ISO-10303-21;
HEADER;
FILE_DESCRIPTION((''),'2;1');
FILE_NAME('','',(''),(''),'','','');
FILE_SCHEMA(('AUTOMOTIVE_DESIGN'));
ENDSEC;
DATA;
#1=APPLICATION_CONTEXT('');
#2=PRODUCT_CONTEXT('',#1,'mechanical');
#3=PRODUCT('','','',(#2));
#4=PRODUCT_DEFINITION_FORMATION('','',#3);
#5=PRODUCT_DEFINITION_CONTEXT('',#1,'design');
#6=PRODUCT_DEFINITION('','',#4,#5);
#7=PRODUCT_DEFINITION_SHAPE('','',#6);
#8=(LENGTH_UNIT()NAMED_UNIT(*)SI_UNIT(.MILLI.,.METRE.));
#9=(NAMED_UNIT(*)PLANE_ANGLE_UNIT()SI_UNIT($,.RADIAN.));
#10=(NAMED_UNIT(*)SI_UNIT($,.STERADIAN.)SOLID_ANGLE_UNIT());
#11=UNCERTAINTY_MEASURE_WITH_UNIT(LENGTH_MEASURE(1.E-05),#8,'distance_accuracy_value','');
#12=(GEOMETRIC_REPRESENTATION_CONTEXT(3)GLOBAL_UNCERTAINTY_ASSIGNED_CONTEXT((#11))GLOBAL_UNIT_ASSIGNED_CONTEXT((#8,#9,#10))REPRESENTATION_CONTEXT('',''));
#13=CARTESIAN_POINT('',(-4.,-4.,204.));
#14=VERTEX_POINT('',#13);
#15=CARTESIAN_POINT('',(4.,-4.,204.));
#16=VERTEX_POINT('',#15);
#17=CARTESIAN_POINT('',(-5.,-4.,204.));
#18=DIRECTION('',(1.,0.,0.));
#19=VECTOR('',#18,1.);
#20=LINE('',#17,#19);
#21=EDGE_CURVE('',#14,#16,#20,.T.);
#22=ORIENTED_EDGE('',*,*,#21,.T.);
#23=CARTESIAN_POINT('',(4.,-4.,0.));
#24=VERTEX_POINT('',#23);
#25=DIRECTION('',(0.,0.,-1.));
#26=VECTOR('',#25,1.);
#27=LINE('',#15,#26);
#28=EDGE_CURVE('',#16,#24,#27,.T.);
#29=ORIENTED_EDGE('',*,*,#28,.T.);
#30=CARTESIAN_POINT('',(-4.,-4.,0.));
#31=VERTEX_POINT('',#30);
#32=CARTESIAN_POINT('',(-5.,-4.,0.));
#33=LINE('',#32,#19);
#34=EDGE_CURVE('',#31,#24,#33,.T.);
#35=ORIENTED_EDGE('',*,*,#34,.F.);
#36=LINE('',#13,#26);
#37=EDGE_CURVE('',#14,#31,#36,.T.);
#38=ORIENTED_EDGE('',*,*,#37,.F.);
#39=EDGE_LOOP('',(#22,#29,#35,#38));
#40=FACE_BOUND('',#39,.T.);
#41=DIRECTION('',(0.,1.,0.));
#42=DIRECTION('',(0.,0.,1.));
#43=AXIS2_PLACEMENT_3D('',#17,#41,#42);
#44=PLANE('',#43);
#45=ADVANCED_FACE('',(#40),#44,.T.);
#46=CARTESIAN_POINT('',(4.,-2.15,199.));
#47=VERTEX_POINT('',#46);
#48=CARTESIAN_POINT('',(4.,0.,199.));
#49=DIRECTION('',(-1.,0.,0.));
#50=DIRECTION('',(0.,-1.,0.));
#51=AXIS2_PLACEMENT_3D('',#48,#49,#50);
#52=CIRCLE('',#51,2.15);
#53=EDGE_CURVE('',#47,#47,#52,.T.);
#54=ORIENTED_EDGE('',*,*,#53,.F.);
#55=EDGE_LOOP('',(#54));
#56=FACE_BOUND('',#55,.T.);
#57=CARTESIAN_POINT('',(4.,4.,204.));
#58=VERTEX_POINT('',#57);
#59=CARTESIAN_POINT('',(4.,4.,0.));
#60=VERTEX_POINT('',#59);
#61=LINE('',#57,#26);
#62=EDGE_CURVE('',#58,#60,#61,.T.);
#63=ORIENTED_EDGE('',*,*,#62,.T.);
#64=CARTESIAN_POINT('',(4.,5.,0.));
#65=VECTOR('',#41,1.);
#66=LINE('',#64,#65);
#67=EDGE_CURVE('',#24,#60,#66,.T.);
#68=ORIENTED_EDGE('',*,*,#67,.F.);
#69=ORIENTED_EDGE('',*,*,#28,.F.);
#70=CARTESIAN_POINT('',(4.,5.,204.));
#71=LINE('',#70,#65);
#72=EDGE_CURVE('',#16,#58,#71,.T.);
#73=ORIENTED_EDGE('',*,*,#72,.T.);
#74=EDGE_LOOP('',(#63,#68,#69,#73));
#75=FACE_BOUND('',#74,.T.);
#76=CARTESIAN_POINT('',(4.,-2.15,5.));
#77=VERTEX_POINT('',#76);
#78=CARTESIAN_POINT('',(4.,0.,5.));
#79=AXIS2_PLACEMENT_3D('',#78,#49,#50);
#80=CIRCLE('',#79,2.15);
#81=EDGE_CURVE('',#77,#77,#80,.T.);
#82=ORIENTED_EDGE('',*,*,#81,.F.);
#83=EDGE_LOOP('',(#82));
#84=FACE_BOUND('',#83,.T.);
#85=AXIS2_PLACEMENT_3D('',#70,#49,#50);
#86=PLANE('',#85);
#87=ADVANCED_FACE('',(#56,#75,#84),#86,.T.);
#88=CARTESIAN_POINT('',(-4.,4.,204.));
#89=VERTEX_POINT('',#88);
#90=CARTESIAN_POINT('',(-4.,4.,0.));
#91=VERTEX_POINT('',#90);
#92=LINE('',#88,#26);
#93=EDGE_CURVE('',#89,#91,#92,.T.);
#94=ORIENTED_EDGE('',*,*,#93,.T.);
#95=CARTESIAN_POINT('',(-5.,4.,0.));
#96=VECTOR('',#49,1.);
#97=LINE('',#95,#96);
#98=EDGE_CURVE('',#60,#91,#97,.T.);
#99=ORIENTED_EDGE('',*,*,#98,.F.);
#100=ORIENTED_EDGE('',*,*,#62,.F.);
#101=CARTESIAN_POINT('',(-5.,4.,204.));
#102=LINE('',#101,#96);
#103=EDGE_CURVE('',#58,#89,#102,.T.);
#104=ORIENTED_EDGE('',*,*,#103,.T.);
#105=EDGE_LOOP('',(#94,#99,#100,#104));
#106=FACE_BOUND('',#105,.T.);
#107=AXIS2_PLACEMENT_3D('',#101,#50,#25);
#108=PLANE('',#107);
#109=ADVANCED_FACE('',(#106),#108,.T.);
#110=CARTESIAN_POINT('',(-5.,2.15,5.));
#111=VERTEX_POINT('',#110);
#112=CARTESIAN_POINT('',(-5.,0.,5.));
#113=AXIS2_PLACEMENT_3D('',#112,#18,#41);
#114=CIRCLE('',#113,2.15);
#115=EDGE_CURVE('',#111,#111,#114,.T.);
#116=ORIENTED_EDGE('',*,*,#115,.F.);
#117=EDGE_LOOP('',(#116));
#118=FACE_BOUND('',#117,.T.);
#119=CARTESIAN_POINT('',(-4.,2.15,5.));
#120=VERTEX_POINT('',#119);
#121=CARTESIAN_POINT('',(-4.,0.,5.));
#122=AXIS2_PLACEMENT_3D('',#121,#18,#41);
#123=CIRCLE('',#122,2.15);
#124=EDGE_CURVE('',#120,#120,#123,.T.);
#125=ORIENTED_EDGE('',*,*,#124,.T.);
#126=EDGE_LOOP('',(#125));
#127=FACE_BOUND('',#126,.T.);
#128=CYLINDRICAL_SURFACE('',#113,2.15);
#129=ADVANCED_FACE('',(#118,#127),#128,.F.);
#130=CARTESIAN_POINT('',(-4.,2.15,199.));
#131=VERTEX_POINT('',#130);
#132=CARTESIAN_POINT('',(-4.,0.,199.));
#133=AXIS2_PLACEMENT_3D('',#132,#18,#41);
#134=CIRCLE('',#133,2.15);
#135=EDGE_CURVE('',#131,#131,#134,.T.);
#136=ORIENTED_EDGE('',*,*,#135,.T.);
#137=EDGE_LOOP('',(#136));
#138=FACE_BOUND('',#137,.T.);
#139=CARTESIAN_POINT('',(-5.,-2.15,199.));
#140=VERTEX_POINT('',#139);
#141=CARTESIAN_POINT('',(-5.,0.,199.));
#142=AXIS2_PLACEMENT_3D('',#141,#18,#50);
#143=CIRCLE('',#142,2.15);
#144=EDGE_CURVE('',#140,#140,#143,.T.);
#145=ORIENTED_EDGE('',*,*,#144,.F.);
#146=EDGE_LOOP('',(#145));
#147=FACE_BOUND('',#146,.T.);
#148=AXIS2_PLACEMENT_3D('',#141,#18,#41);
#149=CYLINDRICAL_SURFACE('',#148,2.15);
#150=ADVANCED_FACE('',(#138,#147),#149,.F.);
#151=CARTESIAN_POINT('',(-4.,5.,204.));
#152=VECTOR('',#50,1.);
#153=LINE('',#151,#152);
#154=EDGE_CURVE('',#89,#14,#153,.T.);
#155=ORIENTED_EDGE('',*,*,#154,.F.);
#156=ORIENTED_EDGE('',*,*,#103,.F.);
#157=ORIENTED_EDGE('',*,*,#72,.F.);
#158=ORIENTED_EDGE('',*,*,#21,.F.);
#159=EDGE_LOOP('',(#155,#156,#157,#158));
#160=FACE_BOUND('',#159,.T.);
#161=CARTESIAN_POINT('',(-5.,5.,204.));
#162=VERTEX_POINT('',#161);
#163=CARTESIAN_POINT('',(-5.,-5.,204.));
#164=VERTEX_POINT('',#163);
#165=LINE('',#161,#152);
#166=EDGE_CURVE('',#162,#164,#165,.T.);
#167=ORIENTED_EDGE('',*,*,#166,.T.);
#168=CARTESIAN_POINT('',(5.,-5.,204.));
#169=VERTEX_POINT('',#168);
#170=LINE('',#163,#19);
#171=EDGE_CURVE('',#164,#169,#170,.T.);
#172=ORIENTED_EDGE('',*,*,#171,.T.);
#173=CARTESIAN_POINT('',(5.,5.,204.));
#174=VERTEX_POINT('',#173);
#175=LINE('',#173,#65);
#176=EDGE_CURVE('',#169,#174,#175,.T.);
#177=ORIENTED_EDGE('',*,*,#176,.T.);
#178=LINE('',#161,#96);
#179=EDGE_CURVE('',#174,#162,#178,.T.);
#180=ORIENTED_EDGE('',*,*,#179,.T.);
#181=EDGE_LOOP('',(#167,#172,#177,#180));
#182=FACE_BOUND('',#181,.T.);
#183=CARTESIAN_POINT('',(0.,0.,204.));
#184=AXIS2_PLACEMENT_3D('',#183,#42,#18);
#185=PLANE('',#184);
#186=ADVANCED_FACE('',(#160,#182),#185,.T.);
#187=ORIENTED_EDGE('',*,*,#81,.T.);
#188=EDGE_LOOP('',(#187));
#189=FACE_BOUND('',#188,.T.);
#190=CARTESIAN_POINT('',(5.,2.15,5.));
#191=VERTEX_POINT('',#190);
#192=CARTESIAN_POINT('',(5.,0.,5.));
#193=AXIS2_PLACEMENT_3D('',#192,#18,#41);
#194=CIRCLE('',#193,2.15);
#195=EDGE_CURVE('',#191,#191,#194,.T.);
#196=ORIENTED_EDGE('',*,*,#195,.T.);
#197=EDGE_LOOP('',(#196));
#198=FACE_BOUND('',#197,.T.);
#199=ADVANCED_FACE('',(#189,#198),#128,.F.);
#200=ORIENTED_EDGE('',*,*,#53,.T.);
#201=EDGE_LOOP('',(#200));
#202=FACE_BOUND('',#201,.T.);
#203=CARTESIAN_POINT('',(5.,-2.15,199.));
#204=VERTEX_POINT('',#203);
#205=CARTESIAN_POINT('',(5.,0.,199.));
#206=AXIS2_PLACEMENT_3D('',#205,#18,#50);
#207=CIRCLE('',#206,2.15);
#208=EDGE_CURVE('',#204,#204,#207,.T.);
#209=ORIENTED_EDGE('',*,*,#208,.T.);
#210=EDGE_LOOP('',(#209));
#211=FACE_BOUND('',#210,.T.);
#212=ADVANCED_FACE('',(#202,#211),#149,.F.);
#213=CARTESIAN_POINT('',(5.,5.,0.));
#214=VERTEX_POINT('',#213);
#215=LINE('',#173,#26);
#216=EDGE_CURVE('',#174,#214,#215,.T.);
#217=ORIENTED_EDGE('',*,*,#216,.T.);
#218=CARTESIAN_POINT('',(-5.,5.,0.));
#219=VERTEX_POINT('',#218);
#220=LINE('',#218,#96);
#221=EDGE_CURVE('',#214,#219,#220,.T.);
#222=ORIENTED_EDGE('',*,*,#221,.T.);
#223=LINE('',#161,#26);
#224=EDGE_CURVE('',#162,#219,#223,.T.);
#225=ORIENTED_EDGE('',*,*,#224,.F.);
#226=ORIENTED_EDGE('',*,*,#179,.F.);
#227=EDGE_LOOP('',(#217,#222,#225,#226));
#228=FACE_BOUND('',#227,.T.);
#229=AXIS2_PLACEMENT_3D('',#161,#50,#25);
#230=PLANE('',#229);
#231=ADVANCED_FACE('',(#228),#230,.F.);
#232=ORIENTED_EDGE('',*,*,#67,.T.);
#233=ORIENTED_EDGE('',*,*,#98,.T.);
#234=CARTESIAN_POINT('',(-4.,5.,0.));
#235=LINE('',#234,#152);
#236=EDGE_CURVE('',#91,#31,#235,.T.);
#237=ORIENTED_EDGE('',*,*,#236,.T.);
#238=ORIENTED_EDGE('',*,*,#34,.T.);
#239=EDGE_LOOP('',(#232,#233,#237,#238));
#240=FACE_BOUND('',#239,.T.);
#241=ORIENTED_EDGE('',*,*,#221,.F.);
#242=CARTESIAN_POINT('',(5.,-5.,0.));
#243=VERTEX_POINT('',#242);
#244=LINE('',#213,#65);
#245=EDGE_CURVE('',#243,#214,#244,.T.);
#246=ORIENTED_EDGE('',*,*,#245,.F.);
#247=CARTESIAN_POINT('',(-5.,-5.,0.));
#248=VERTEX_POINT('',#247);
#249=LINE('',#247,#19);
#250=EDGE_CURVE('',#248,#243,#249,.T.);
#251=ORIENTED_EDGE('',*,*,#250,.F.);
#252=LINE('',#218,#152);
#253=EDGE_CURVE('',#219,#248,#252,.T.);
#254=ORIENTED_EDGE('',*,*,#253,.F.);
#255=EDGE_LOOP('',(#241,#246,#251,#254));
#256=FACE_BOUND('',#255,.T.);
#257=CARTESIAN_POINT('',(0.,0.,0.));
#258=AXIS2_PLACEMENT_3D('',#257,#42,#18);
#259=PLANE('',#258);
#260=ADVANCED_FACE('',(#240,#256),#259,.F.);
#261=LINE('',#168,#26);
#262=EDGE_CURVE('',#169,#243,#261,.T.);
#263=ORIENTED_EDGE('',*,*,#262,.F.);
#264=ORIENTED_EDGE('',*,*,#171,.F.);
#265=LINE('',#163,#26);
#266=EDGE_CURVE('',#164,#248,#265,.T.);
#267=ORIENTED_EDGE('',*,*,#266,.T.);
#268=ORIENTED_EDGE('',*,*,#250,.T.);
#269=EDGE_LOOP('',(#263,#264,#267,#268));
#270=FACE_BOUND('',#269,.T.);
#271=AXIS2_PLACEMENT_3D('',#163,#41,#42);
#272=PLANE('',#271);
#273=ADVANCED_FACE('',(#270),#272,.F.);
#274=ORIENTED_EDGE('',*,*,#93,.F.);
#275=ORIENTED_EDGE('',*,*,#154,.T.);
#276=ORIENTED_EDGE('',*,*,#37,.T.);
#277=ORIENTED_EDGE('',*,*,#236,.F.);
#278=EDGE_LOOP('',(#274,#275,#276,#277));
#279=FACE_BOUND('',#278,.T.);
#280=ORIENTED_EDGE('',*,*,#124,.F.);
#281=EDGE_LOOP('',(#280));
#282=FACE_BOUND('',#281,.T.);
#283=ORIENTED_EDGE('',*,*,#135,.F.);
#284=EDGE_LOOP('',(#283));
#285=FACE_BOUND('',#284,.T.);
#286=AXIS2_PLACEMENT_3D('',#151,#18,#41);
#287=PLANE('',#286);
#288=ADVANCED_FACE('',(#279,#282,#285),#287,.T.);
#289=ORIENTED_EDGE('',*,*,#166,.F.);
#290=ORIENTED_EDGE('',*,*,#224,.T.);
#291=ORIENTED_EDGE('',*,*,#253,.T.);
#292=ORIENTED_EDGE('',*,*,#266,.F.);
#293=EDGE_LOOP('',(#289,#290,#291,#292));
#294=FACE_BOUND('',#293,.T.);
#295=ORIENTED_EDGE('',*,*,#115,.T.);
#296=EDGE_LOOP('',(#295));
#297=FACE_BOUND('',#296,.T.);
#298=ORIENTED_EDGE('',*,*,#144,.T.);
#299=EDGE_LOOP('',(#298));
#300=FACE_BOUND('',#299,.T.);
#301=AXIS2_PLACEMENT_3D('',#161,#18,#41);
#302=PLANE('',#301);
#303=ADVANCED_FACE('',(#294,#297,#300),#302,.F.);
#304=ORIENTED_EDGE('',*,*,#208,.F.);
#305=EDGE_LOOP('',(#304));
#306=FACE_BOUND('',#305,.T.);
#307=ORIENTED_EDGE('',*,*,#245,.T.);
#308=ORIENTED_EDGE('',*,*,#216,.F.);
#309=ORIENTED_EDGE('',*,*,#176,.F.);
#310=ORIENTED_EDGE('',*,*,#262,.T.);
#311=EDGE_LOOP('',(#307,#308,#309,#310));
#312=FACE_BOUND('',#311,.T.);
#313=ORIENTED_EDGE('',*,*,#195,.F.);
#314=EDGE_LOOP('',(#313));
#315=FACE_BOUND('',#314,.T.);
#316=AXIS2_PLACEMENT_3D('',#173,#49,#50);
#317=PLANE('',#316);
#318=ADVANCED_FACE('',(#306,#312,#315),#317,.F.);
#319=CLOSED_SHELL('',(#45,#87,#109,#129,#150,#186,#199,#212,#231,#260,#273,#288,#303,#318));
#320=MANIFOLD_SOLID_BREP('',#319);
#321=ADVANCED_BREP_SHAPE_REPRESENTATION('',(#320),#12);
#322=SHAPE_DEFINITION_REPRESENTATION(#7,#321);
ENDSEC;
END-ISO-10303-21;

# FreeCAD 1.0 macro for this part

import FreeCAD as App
import Part
import Sketcher
from FreeCAD import Vector

doc = App.newDocument("Part")
params = doc.addObject("Spreadsheet::Sheet", "Params")
for row, (alias, value) in enumerate([
    ("sketch1_width", "10 mm"),
    ("sketch1_width2", "8 mm"),
    ("pad1_length", "204 mm"),
    ("sketch2_diameter", "4.3 mm"),
], start=1):
    params.set(f"A{row}", alias)
    params.set(f"B{row}", "=" + value)
    params.setAlias(f"B{row}", alias)

body = doc.addObject("PartDesign::Body", "Body")

# Sketch on XY plane
sketch1 = doc.addObject("Sketcher::SketchObject", "Sketch")
body.addObject(sketch1)
sketch1.AttachmentSupport = (doc.XY_Plane, [""])
sketch1.MapMode = "FlatFace"
sketch1.addGeometry([
    Part.LineSegment(Vector(-5, 5, 0), Vector(-5, -5, 0)),  # 0
    Part.LineSegment(Vector(-5, -5, 0), Vector(5, -5, 0)),  # 1
    Part.LineSegment(Vector(5, -5, 0), Vector(5, 5, 0)),  # 2
    Part.LineSegment(Vector(5, 5, 0), Vector(-5, 5, 0)),  # 3
    Part.LineSegment(Vector(4, -4, 0), Vector(-4, -4, 0)),  # 4
    Part.LineSegment(Vector(-4, -4, 0), Vector(-4, 4, 0)),  # 5
    Part.LineSegment(Vector(-4, 4, 0), Vector(4, 4, 0)),  # 6
    Part.LineSegment(Vector(4, 4, 0), Vector(4, -4, 0)),  # 7
], False)
sketch1.addConstraint([
    Sketcher.Constraint("Coincident", 0, 2, 1, 1),
    Sketcher.Constraint("Coincident", 1, 2, 2, 1),
    Sketcher.Constraint("Coincident", 2, 2, 3, 1),
    Sketcher.Constraint("Coincident", 3, 2, 0, 1),
    Sketcher.Constraint("Coincident", 4, 2, 5, 1),
    Sketcher.Constraint("Coincident", 5, 2, 6, 1),
    Sketcher.Constraint("Coincident", 6, 2, 7, 1),
    Sketcher.Constraint("Coincident", 7, 2, 4, 1),
    Sketcher.Constraint("Vertical", 0),
    Sketcher.Constraint("Horizontal", 1),
    Sketcher.Constraint("Vertical", 2),
    Sketcher.Constraint("Horizontal", 3),
    Sketcher.Constraint("Horizontal", 4),
    Sketcher.Constraint("Vertical", 5),
    Sketcher.Constraint("Horizontal", 6),
    Sketcher.Constraint("Vertical", 7),
    Sketcher.Constraint("Symmetric", 0, 2, 2, 2, -1, 1),
    Sketcher.Constraint("Symmetric", 4, 2, 6, 2, -1, 1),
    Sketcher.Constraint("Equal", 3, 0),
    Sketcher.Constraint("Equal", 6, 5),
    Sketcher.Constraint("DistanceX", 1, 1, 1, 2, 10.0),
    Sketcher.Constraint("DistanceX", 4, 2, 4, 1, 8.0),
])
sketch1.setExpression("Constraints[20]", "Params.sketch1_width")
sketch1.setExpression("Constraints[21]", "Params.sketch1_width2")
pad1 = doc.addObject("PartDesign::Pad", "Pad")
body.addObject(pad1)
pad1.Profile = sketch1
pad1.setExpression("Length", "Params.pad1_length")

# Sketch on YZ plane
sketch2 = doc.addObject("Sketcher::SketchObject", "Sketch001")
body.addObject(sketch2)
sketch2.AttachmentSupport = (doc.YZ_Plane, [""])
sketch2.MapMode = "FlatFace"
sketch2.AttachmentOffset = App.Placement(Vector(0, 0, 5), App.Rotation())
sketch2.addGeometry([
    Part.Circle(Vector(0, 5, 0), Vector(0, 0, 1), 2.1),
    Part.Circle(Vector(0, 199, 0), Vector(0, 0, 1), 2.1),
], False)
sketch2.addConstraint([
    Sketcher.Constraint("Equal", 0, 1),
    Sketcher.Constraint("PointOnObject", 0, 3, -2),
    Sketcher.Constraint("PointOnObject", 1, 3, -2),
    Sketcher.Constraint("Diameter", 0, 4.3),
    Sketcher.Constraint("DistanceY", -1, 1, 0, 3, 5.0),
    Sketcher.Constraint("DistanceY", -1, 1, 1, 3, 199.0),
])
sketch2.setExpression("Constraints[3]", "Params.sketch2_diameter")
pocket1 = doc.addObject("PartDesign::Pocket", "Pocket")
body.addObject(pocket1)
pocket1.Profile = sketch2
pocket1.Type = "ThroughAll"

doc.recompute()
